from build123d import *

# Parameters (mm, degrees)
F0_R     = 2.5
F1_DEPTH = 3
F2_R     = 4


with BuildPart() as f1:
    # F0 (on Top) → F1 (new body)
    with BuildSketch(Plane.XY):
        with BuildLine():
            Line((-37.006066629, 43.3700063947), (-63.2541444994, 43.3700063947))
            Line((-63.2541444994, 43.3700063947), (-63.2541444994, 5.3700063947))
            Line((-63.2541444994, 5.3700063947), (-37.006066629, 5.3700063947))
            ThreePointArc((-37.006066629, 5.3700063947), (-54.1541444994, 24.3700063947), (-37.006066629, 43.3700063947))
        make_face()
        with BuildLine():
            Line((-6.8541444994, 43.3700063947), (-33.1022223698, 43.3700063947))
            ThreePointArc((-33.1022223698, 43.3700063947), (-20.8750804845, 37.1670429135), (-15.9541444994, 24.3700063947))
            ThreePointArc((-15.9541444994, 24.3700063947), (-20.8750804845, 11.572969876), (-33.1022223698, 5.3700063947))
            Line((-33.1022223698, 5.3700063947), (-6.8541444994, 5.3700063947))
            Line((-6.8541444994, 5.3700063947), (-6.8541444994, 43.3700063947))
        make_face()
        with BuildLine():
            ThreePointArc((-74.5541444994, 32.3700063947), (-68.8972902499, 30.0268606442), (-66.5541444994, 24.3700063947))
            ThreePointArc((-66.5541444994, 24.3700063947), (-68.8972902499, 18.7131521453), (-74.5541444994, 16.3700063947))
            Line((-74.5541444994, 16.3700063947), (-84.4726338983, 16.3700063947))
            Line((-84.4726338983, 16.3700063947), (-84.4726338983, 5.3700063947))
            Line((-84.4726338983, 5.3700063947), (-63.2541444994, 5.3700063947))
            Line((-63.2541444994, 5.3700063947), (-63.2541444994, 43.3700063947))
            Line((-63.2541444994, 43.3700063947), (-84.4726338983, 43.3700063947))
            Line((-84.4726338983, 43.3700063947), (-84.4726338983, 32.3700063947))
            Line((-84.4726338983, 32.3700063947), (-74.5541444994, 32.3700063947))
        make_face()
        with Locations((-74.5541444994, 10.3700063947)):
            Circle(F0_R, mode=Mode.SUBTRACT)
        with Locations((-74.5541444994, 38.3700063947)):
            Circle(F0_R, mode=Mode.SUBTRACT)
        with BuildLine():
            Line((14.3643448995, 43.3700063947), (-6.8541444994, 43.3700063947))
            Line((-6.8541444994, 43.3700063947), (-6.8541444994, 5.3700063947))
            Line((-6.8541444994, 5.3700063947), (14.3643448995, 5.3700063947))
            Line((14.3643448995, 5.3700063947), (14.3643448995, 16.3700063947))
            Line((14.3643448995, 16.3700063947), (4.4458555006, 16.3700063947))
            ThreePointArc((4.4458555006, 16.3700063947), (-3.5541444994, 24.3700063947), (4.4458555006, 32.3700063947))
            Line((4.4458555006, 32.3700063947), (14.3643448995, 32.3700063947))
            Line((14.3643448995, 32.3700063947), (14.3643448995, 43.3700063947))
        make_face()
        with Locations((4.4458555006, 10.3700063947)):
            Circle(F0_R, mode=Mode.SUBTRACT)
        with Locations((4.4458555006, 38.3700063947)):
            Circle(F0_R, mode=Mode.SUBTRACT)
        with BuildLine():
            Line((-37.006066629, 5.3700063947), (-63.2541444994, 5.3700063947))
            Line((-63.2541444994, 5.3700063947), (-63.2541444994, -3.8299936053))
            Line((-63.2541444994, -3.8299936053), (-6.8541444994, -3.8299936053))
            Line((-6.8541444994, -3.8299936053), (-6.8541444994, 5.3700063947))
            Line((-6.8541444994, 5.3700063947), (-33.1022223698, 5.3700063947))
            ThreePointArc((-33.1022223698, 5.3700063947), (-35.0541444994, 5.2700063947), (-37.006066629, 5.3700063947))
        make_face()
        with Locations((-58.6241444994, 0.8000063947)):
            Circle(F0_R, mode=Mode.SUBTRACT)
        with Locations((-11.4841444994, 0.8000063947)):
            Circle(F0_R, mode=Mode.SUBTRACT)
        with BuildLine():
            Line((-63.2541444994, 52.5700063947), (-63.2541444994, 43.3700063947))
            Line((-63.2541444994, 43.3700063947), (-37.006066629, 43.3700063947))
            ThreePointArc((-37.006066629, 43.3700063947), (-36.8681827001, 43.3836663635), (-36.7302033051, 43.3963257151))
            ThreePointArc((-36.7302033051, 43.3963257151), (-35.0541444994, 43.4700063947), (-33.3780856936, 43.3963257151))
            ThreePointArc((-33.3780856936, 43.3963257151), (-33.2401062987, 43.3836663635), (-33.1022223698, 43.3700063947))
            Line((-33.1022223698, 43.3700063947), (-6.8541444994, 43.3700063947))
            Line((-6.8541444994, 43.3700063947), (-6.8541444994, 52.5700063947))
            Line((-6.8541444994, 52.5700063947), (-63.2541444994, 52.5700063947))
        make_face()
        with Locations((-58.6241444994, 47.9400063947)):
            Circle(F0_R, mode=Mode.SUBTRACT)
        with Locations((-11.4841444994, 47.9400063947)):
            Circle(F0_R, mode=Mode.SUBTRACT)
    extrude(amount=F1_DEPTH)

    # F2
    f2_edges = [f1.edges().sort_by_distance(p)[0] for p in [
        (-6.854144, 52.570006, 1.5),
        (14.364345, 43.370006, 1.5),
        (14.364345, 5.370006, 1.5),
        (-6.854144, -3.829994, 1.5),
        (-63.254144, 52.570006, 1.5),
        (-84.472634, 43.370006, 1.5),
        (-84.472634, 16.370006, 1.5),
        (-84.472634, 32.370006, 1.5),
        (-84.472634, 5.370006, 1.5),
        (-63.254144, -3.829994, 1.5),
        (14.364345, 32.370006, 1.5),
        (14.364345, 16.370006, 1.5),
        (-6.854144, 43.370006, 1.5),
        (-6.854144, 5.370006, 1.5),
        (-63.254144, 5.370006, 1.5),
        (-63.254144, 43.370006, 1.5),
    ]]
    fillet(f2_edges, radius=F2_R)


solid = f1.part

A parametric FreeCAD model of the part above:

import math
import FreeCAD as App
import Part
import Sketcher

V = App.Vector
Q = App.Units.Quantity


def edges_at(feature, points):
    """Names of the edges that pass closest to the given points."""
    edges = feature.Shape.Edges
    near = lambda p: min(range(len(edges)), key=lambda i: edges[i].distToShape(Part.Vertex(*p))[0])
    return sorted({f"Edge{near(p) + 1}" for p in points})

doc = App.newDocument("Part")
params = doc.addObject("Spreadsheet::Sheet", "Params")
for row, (alias, value) in enumerate([
    ("sketch1_diameter", "5 mm"),
    ("sketch1_radius", "8 mm"),
    ("sketch1_radius2", "19.1 mm"),
    ("sketch1_height", "11 mm"),
    ("sketch1_width", "56.4 mm"),
    ("pad1_length", "3 mm"),
    ("fillet_radius", "4 mm"),
], start=1):
    params.set(f"A{row}", alias)
    params.set(f"B{row}", "=" + value)
    params.setAlias(f"B{row}", alias)

body = doc.addObject("PartDesign::Body", "Body")

# Sketch on XY plane
sketch1 = body.newObject("Sketcher::SketchObject", "Sketch")
sketch1.AttachmentSupport = (doc.getObject("XY_Plane"), [""])
sketch1.MapMode = "FlatFace"
sketch1.addGeometry(Part.LineSegment(V(-63.254144, 43.370006, 0), V(-84.472634, 43.370006, 0)), False)
sketch1.addGeometry(Part.LineSegment(V(-84.472634, 43.370006, 0), V(-84.472634, 32.370006, 0)), False)
sketch1.addGeometry(Part.LineSegment(V(-84.472634, 32.370006, 0), V(-74.554144, 32.370006, 0)), False)
sketch1.addGeometry(Part.ArcOfCircle(Part.Circle(V(-74.554144, 24.370006, 0), V(0, 0, 1), 8), math.radians(0), math.radians(90)), False)
sketch1.addGeometry(Part.ArcOfCircle(Part.Circle(V(-74.554145, 24.370006, 0), V(0, 0, 1), 8), math.radians(-90), math.radians(0)), False)
sketch1.addGeometry(Part.LineSegment(V(-74.554144, 16.370006, 0), V(-84.472634, 16.370006, 0)), False)
sketch1.addGeometry(Part.LineSegment(V(-84.472634, 16.370006, 0), V(-84.472634, 5.370006, 0)), False)
sketch1.addGeometry(Part.LineSegment(V(-84.472634, 5.370006, 0), V(-63.254144, 5.370006, 0)), False)
sketch1.addGeometry(Part.LineSegment(V(-63.254144, 5.370006, 0), V(-63.254144, -3.829994, 0)), False)
sketch1.addGeometry(Part.LineSegment(V(-63.254144, -3.829994, 0), V(-6.854144, -3.829994, 0)), False)
sketch1.addGeometry(Part.LineSegment(V(-6.854144, -3.829994, 0), V(-6.854144, 5.370006, 0)), False)
sketch1.addGeometry(Part.LineSegment(V(-6.854144, 5.370006, 0), V(14.364345, 5.370006, 0)), False)
sketch1.addGeometry(Part.LineSegment(V(14.364345, 5.370006, 0), V(14.364345, 16.370006, 0)), False)
sketch1.addGeometry(Part.LineSegment(V(14.364345, 16.370006, 0), V(4.445856, 16.370006, 0)), False)
sketch1.addGeometry(Part.ArcOfCircle(Part.Circle(V(4.445856, 24.370006, 0), V(0, 0, 1), 8), math.radians(90), math.radians(270)), False)
sketch1.addGeometry(Part.LineSegment(V(4.445856, 32.370006, 0), V(14.364345, 32.370006, 0)), False)
sketch1.addGeometry(Part.LineSegment(V(14.364345, 32.370006, 0), V(14.364345, 43.370006, 0)), False)
sketch1.addGeometry(Part.LineSegment(V(14.364345, 43.370006, 0), V(-6.854144, 43.370006, 0)), False)
sketch1.addGeometry(Part.LineSegment(V(-6.854144, 43.370006, 0), V(-6.854144, 52.570006, 0)), False)
sketch1.addGeometry(Part.LineSegment(V(-6.854144, 52.570006, 0), V(-63.254144, 52.570006, 0)), False)
sketch1.addGeometry(Part.LineSegment(V(-63.254144, 52.570006, 0), V(-63.254144, 43.370006, 0)), False)
sketch1.addGeometry(Part.Circle(V(-58.624144, 0.800006, 0), V(0, 0, 1), 2.5), False)
sketch1.addGeometry(Part.Circle(V(-74.554144, 10.370006, 0), V(0, 0, 1), 2.5), False)
sketch1.addGeometry(Part.Circle(V(-11.484144, 0.800006, 0), V(0, 0, 1), 2.5), False)
sketch1.addGeometry(Part.Circle(V(4.445856, 10.370006, 0), V(0, 0, 1), 2.5), False)
sketch1.addGeometry(Part.ArcOfCircle(Part.Circle(V(-35.054144, 24.370006, 0), V(0, 0, 1), 19.1), math.radians(95.865575), math.radians(275.865575)), False)
sketch1.addGeometry(Part.ArcOfCircle(Part.Circle(V(-35.054145, 24.370008, 0), V(0, 0, 1), 19.099998), math.radians(95.034281), math.radians(95.865575)), False)
sketch1.addGeometry(Part.ArcOfCircle(Part.Circle(V(-35.054144, 24.370006, 0), V(0, 0, 1), 19.1), math.radians(84.965719), math.radians(95.034281)), False)
sketch1.addGeometry(Part.ArcOfCircle(Part.Circle(V(-35.054144, 24.370008, 0), V(0, 0, 1), 19.099998), math.radians(84.134425), math.radians(84.965719)), False)
sketch1.addGeometry(Part.ArcOfCircle(Part.Circle(V(-35.054144, 24.370006, 0), V(0, 0, 1), 19.1), math.radians(0), math.radians(84.134425)), False)
sketch1.addGeometry(Part.ArcOfCircle(Part.Circle(V(-35.054144, 24.370006, 0), V(0, 0, 1), 19.1), math.radians(-84.134425), math.radians(0)), False)
sketch1.addGeometry(Part.Circle(V(-74.554144, 38.370006, 0), V(0, 0, 1), 2.5), False)
sketch1.addGeometry(Part.Circle(V(-58.624144, 47.940006, 0), V(0, 0, 1), 2.5), False)
sketch1.addGeometry(Part.Circle(V(4.445856, 38.370006, 0), V(0, 0, 1), 2.5), False)
sketch1.addGeometry(Part.Circle(V(-11.484144, 47.940006, 0), V(0, 0, 1), 2.5), False)
sketch1.addConstraint(Sketcher.Constraint("Coincident", 0, 2, 1, 1))
sketch1.addConstraint(Sketcher.Constraint("Coincident", 1, 2, 2, 1))
sketch1.addConstraint(Sketcher.Constraint("Tangent", 2, 2, 3, 2))
sketch1.addConstraint(Sketcher.Constraint("Tangent", 3, 1, 4, 2))
sketch1.addConstraint(Sketcher.Constraint("Tangent", 4, 1, 5, 1))
sketch1.addConstraint(Sketcher.Constraint("Coincident", 5, 2, 6, 1))
sketch1.addConstraint(Sketcher.Constraint("Coincident", 6, 2, 7, 1))
sketch1.addConstraint(Sketcher.Constraint("Coincident", 7, 2, 8, 1))
sketch1.addConstraint(Sketcher.Constraint("Coincident", 8, 2, 9, 1))
sketch1.addConstraint(Sketcher.Constraint("Coincident", 9, 2, 10, 1))
sketch1.addConstraint(Sketcher.Constraint("Coincident", 10, 2, 11, 1))
sketch1.addConstraint(Sketcher.Constraint("Coincident", 11, 2, 12, 1))
sketch1.addConstraint(Sketcher.Constraint("Coincident", 12, 2, 13, 1))
sketch1.addConstraint(Sketcher.Constraint("Tangent", 13, 2, 14, 2))
sketch1.addConstraint(Sketcher.Constraint("Tangent", 14, 1, 15, 1))
sketch1.addConstraint(Sketcher.Constraint("Coincident", 15, 2, 16, 1))
sketch1.addConstraint(Sketcher.Constraint("Coincident", 16, 2, 17, 1))
sketch1.addConstraint(Sketcher.Constraint("Coincident", 17, 2, 18, 1))
sketch1.addConstraint(Sketcher.Constraint("Coincident", 18, 2, 19, 1))
sketch1.addConstraint(Sketcher.Constraint("Coincident", 19, 2, 20, 1))
sketch1.addConstraint(Sketcher.Constraint("Coincident", 20, 2, 0, 1))
sketch1.addConstraint(Sketcher.Constraint("Tangent", 25, 1, 26, 2))
sketch1.addConstraint(Sketcher.Constraint("Tangent", 26, 1, 27, 2))
sketch1.addConstraint(Sketcher.Constraint("Tangent", 27, 1, 28, 2))
sketch1.addConstraint(Sketcher.Constraint("Tangent", 28, 1, 29, 2))
sketch1.addConstraint(Sketcher.Constraint("Tangent", 29, 1, 30, 2))
sketch1.addConstraint(Sketcher.Constraint("Tangent", 30, 1, 25, 2))
sketch1.addConstraint(Sketcher.Constraint("Horizontal", 0))
sketch1.addConstraint(Sketcher.Constraint("Vertical", 1))
sketch1.addConstraint(Sketcher.Constraint("Horizontal", 2))
sketch1.addConstraint(Sketcher.Constraint("Horizontal", 5))
sketch1.addConstraint(Sketcher.Constraint("Vertical", 6))
sketch1.addConstraint(Sketcher.Constraint("Horizontal", 7))
sketch1.addConstraint(Sketcher.Constraint("Vertical", 8))
sketch1.addConstraint(Sketcher.Constraint("Horizontal", 9))
sketch1.addConstraint(Sketcher.Constraint("Vertical", 10))
sketch1.addConstraint(Sketcher.Constraint("Horizontal", 11))
sketch1.addConstraint(Sketcher.Constraint("Vertical", 12))
sketch1.addConstraint(Sketcher.Constraint("Horizontal", 13))
sketch1.addConstraint(Sketcher.Constraint("Horizontal", 15))
sketch1.addConstraint(Sketcher.Constraint("Vertical", 16))
sketch1.addConstraint(Sketcher.Constraint("Horizontal", 17))
sketch1.addConstraint(Sketcher.Constraint("Vertical", 18))
sketch1.addConstraint(Sketcher.Constraint("Horizontal", 19))
sketch1.addConstraint(Sketcher.Constraint("Vertical", 20))
sketch1.addConstraint(Sketcher.Constraint("Coincident", 27, 3, 25, 3))
sketch1.addConstraint(Sketcher.Constraint("Equal", 3, 4))
sketch1.addConstraint(Sketcher.Constraint("Equal", 4, 14))
sketch1.addConstraint(Sketcher.Constraint("Equal", 21, 22))
sketch1.addConstraint(Sketcher.Constraint("Equal", 22, 23))
sketch1.addConstraint(Sketcher.Constraint("Equal", 23, 24))
sketch1.addConstraint(Sketcher.Constraint("Equal", 27, 28))
sketch1.addConstraint(Sketcher.Constraint("Equal", 24, 31))
sketch1.addConstraint(Sketcher.Constraint("Equal", 31, 32))
sketch1.addConstraint(Sketcher.Constraint("Equal", 32, 33))
sketch1.addConstraint(Sketcher.Constraint("Equal", 33, 34))
sketch1.addConstraint(Sketcher.Constraint("Horizontal", 4, 3, 14, 3))
sketch1.addConstraint(Sketcher.Constraint("Horizontal", 21, 3, 23, 3))
sketch1.addConstraint(Sketcher.Constraint("Horizontal", 22, 3, 24, 3))
sketch1.addConstraint(Sketcher.Constraint("Horizontal", 14, 3, 25, 3))
sketch1.addConstraint(Sketcher.Constraint("Horizontal", 31, 3, 33, 3))
sketch1.addConstraint(Sketcher.Constraint("Horizontal", 32, 3, 34, 3))
sketch1.addConstraint(Sketcher.Constraint("Horizontal", 30, 3, 3, 1))
sketch1.addConstraint(Sketcher.Constraint("Horizontal", 7, 2, 10, 2))
sketch1.addConstraint(Sketcher.Constraint("Horizontal", 0, 2, 16, 2))
sketch1.addConstraint(Sketcher.Constraint("Horizontal", 20, 2, 25, 1))
sketch1.addConstraint(Sketcher.Constraint("Horizontal", 26, 1, 27, 1))
sketch1.addConstraint(Sketcher.Constraint("Horizontal", 25, 1, 28, 1))
sketch1.addConstraint(Sketcher.Constraint("Horizontal", 3, 1, 29, 1))
sketch1.addConstraint(Sketcher.Constraint("Horizontal", 11, 2, 30, 1))
sketch1.addConstraint(Sketcher.Constraint("Vertical", 4, 3, 22, 3))
sketch1.addConstraint(Sketcher.Constraint("Vertical", 14, 3, 24, 3))
sketch1.addConstraint(Sketcher.Constraint("Vertical", 22, 3, 31, 3))
sketch1.addConstraint(Sketcher.Constraint("Vertical", 21, 3, 32, 3))
sketch1.addConstraint(Sketcher.Constraint("Vertical", 24, 3, 33, 3))
sketch1.addConstraint(Sketcher.Constraint("Vertical", 23, 3, 34, 3))
sketch1.addConstraint(Sketcher.Constraint("Vertical", 1, 2, 5, 2))
sketch1.addConstraint(Sketcher.Constraint("Vertical", 12, 2, 15, 2))
sketch1.addConstraint(Sketcher.Constraint("Vertical", 10, 2, 17, 2))
sketch1.addConstraint(Sketcher.Constraint("Vertical", 8, 2, 19, 2))
sketch1.addConstraint(Sketcher.Constraint("Vertical", 28, 1, 30, 1))
sketch1.addConstraint(Sketcher.Constraint("Equal", 7, 11))
sketch1.addConstraint(Sketcher.Constraint("Equal", 5, 13))
sketch1.addConstraint(Sketcher.Constraint("Equal", 10, 18))
sketch1.addConstraint(Sketcher.Constraint("Diameter", 21, Q("5 mm")))
sketch1.addConstraint(Sketcher.Constraint("Radius", 3, Q("8 mm")))
sketch1.addConstraint(Sketcher.Constraint("Radius", 25, Q("19.1 mm")))
sketch1.addConstraint(Sketcher.Constraint("DistanceY", 1, 2, 1, 1, Q("11 mm")))
sketch1.addConstraint(Sketcher.Constraint("DistanceX", 9, 1, 9, 2, Q("56.4 mm")))
sketch1.addConstraint(Sketcher.Constraint("DistanceY", 8, 2, 8, 1, Q("9.2 mm")))
sketch1.addConstraint(Sketcher.Constraint("DistanceX", 3, 3, 14, 3, Q("79 mm")))
sketch1.addConstraint(Sketcher.Constraint("DistanceY", 22, 3, 3, 3, Q("14 mm")))
sketch1.addConstraint(Sketcher.Constraint("DistanceY", 3, 3, 31, 3, Q("14 mm")))
sketch1.addConstraint(Sketcher.Constraint("DistanceX", 3, 3, 25, 3, Q("39.5 mm")))
sketch1.addConstraint(Sketcher.Constraint("DistanceX", 3, 3, 21, 3, Q("15.93 mm")))
sketch1.addConstraint(Sketcher.Constraint("DistanceY", 21, 3, 3, 3, Q("23.57 mm")))
sketch1.addConstraint(Sketcher.Constraint("DistanceX", 23, 3, 14, 3, Q("15.93 mm")))
sketch1.addConstraint(Sketcher.Constraint("DistanceY", 31, 3, 32, 3, Q("9.57 mm")))
sketch1.addConstraint(Sketcher.Constraint("DistanceX", 0, 2, 0, 1, Q("21.218489 mm")))
sketch1.addConstraint(Sketcher.Constraint("DistanceY", -1, 1, 26, 3, Q("24.370008 mm")))
sketch1.addConstraint(Sketcher.Constraint("DistanceY", 25, 1, 26, 1, Q("0.026319 mm")))
sketch1.addConstraint(Sketcher.Constraint("DistanceX", 3, 3, -1, 1, Q("74.554144 mm")))
sketch1.setExpression("Constraints[84]", "Params.sketch1_diameter")
sketch1.setExpression("Constraints[85]", "Params.sketch1_radius")
sketch1.setExpression("Constraints[86]", "Params.sketch1_radius2")
sketch1.setExpression("Constraints[87]", "Params.sketch1_height")
sketch1.setExpression("Constraints[88]", "Params.sketch1_width")
pad1 = body.newObject("PartDesign::Pad", "Pad")
pad1.Profile = sketch1
pad1.setExpression("Length", "Params.pad1_length")
doc.recompute()

fillet = body.newObject("PartDesign::Fillet", "Fillet")
fillet.Base = (pad1, edges_at(pad1, [
    (-6.854, 52.57, 1.5),
    (14.364, 43.37, 1.5),
    (14.364, 5.37, 1.5),
    (-6.854, -3.83, 1.5),
    (-63.254, 52.57, 1.5),
    (-84.473, 43.37, 1.5),
    (-84.473, 16.37, 1.5),
    (-84.473, 32.37, 1.5),
    (-84.473, 5.37, 1.5),
    (-63.254, -3.83, 1.5),
    (14.364, 32.37, 1.5),
    (14.364, 16.37, 1.5),
    (-6.854, 43.37, 1.5),
    (-6.854, 5.37, 1.5),
    (-63.254, 5.37, 1.5),
    (-63.254, 43.37, 1.5),
]))
fillet.setExpression("Radius", "Params.fillet_radius")

doc.recompute()
